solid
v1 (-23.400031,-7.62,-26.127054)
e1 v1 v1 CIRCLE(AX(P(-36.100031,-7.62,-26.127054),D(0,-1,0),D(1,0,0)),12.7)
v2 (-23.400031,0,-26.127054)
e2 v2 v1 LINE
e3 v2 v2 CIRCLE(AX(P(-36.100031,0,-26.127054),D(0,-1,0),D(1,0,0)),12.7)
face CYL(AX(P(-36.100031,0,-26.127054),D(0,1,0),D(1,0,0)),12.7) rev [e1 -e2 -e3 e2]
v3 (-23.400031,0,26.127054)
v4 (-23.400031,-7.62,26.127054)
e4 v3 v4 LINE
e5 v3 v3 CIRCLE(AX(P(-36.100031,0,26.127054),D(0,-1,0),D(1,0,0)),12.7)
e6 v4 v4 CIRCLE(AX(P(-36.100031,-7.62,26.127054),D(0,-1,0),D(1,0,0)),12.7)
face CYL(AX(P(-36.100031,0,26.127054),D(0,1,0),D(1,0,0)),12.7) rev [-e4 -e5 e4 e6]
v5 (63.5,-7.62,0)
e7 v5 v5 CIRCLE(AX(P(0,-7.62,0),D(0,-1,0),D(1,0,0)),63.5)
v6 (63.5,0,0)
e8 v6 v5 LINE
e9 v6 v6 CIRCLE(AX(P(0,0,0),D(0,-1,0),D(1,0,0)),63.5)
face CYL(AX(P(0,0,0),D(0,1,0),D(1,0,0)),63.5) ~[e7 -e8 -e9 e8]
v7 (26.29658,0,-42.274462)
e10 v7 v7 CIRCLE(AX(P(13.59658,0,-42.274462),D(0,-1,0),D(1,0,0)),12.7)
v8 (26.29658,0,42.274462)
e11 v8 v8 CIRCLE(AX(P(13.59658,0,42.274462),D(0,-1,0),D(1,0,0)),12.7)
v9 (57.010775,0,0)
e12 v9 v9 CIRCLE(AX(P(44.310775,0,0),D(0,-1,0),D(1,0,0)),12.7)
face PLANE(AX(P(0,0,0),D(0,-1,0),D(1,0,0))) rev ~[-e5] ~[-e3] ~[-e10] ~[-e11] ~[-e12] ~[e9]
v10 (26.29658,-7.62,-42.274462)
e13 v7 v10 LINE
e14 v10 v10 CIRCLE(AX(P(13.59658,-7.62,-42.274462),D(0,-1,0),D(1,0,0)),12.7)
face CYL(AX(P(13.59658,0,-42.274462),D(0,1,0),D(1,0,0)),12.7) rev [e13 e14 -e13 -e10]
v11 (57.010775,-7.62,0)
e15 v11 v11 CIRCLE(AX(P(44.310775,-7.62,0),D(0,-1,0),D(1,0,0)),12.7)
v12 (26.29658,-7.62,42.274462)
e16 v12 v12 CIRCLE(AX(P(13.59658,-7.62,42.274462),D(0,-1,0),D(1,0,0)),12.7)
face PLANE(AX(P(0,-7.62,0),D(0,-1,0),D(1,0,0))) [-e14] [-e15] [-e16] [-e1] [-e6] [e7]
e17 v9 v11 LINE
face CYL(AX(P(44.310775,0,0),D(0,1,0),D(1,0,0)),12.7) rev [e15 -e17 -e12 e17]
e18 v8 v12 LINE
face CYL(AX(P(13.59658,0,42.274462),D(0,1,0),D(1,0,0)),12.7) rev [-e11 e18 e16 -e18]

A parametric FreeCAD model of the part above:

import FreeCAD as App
import Part
import Sketcher

V = App.Vector
Q = App.Units.Quantity

doc = App.newDocument("Part")
body = doc.addObject("PartDesign::Body", "Body")

sketch1 = body.newObject("Sketcher::SketchObject", "Sketch")
sketch1.AttachmentSupport = (doc.getObject("XZ_Plane"), [""])
sketch1.MapMode = "FlatFace"
sketch1.addGeometry(Part.Circle(V(0, 0, 0), V(0, 0, 1), 64), False)
sketch1.addGeometry(Part.Circle(V(-36, -26, 0), V(0, 0, 1), 13), False)
sketch1.addGeometry(Part.Circle(V(14, -42, 0), V(0, 0, 1), 13), False)
sketch1.addGeometry(Part.Circle(V(-36, 26, 0), V(0, 0, 1), 13), False)
sketch1.addGeometry(Part.Circle(V(44, 0, 0), V(0, 0, 1), 13), False)
sketch1.addGeometry(Part.Circle(V(14, 42, 0), V(0, 0, 1), 13), False)
sketch1.addConstraint(Sketcher.Constraint("Coincident", 0, 3, -1, 1))
sketch1.addConstraint(Sketcher.Constraint("Equal", 1, 2))
sketch1.addConstraint(Sketcher.Constraint("Equal", 2, 3))
sketch1.addConstraint(Sketcher.Constraint("Equal", 3, 4))
sketch1.addConstraint(Sketcher.Constraint("Equal", 4, 5))
sketch1.addConstraint(Sketcher.Constraint("Symmetric", 1, 3, 3, 3, -1))
sketch1.addConstraint(Sketcher.Constraint("Symmetric", 2, 3, 5, 3, -1))
sketch1.addConstraint(Sketcher.Constraint("PointOnObject", 4, 3, -1))
sketch1.addConstraint(Sketcher.Constraint("Diameter", 0, Q("5 in")))
sketch1.addConstraint(Sketcher.Constraint("Diameter", 1, Q("1 in")))
sketch1.addConstraint(Sketcher.Constraint("DistanceX", 1, 3, -1, 1, 36.100031))
sketch1.addConstraint(Sketcher.Constraint("DistanceX", -1, 1, 2, 3, 13.59658))
sketch1.addConstraint(Sketcher.Constraint("DistanceY", 1, 3, 3, 3, 52.254108))
sketch1.addConstraint(Sketcher.Constraint("DistanceY", 2, 3, -1, 1, 42.274462))
sketch1.addConstraint(Sketcher.Constraint("DistanceX", -1, 1, 4, 3, 44.310775))
pad1 = body.newObject("PartDesign::Pad", "Pad")
pad1.Profile = sketch1
pad1.Length = Q("0.3 in")

doc.recompute()
